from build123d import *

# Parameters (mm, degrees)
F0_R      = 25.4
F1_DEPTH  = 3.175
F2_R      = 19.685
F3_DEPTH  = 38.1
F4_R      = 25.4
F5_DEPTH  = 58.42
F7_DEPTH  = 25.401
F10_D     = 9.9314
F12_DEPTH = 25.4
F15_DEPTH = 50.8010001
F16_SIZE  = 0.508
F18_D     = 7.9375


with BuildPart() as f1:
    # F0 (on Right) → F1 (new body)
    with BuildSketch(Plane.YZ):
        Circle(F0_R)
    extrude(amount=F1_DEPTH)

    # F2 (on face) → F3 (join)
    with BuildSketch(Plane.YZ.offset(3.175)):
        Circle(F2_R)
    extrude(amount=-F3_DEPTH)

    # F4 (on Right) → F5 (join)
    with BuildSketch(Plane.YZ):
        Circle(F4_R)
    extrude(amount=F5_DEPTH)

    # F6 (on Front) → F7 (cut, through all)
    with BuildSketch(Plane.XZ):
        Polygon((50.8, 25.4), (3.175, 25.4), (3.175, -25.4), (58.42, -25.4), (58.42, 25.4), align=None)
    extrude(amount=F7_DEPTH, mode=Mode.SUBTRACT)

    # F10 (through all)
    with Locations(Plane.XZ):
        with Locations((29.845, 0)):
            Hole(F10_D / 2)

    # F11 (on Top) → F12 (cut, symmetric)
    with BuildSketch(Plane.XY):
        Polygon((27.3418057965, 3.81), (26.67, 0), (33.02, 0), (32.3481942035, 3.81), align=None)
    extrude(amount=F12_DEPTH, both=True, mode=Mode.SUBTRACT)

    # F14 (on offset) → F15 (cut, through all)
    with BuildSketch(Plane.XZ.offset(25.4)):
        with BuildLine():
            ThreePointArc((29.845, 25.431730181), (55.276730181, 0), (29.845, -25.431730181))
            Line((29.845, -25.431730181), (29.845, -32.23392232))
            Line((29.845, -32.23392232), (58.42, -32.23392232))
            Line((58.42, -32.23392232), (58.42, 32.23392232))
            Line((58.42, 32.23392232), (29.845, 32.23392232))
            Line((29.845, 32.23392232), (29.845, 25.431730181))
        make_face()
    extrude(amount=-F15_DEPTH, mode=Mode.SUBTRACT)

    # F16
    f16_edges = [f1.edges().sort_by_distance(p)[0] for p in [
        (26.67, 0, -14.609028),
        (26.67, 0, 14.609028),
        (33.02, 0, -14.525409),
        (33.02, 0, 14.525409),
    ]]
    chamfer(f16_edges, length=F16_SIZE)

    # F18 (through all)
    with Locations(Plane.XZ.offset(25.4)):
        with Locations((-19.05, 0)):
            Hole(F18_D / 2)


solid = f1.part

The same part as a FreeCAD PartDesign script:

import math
import FreeCAD as App
import Part
import Sketcher
Q = App.Units.Quantity


def edges_at(feature, points):
    """Names of the edges that pass closest to the given points."""
    edges = feature.Shape.Edges
    near = lambda p: min(range(len(edges)), key=lambda i: edges[i].distToShape(Part.Vertex(*p))[0])
    return sorted({f"Edge{near(p) + 1}" for p in points})

doc = App.newDocument("Part")
body = doc.addObject("PartDesign::Body", "Body")

# Sketch on YZ plane
sketch1 = body.newObject("Sketcher::SketchObject", "Sketch")
sketch1.AttachmentSupport = (doc.getObject("YZ_Plane"), [""])
sketch1.MapMode = "FlatFace"
sketch1.addGeometry(Part.Circle(App.Vector(0, 0, 0), App.Vector(0, 0, 1), 25.4), False)
sketch1.addConstraint([
    Sketcher.Constraint("Coincident", 0, 3, -1, 1),
    Sketcher.Constraint("Diameter", 0, Q("2 in")),
])
pad1 = body.newObject("PartDesign::Pad", "Pad")
pad1.Profile = sketch1
pad1.Length = Q("0.125 in")

# Sketch on YZ plane
sketch2 = body.newObject("Sketcher::SketchObject", "Sketch001")
sketch2.AttachmentSupport = (doc.getObject("YZ_Plane"), [""])
sketch2.MapMode = "FlatFace"
sketch2.AttachmentOffset = App.Placement(App.Vector(0, 0, 0.125 * 25.4), App.Rotation())
sketch2.addGeometry(Part.Circle(App.Vector(0, 0, 0), App.Vector(0, 0, 1), 19.685), False)
sketch2.addConstraint([
    Sketcher.Constraint("Coincident", 0, 3, -1, 1),
    Sketcher.Constraint("Diameter", 0, Q("1.55 in")),
])
pad2 = body.newObject("PartDesign::Pad", "Pad001")
pad2.Profile = sketch2
pad2.Length = Q("1.5 in")
pad2.Reversed = True

# Sketch on YZ plane
sketch3 = body.newObject("Sketcher::SketchObject", "Sketch002")
sketch3.AttachmentSupport = (doc.getObject("YZ_Plane"), [""])
sketch3.MapMode = "FlatFace"
sketch3.addGeometry(Part.Circle(App.Vector(0, 0, 0), App.Vector(0, 0, 1), 25.4), False)
sketch3.addConstraint([
    Sketcher.Constraint("Coincident", 0, 3, -1, 1),
    Sketcher.Constraint("Diameter", 0, Q("2 in")),
])
pad3 = body.newObject("PartDesign::Pad", "Pad002")
pad3.Profile = sketch3
pad3.Length = Q("2.3 in")

# Sketch on XZ plane
sketch4 = body.newObject("Sketcher::SketchObject", "Sketch003")
sketch4.AttachmentSupport = (doc.getObject("XZ_Plane"), [""])
sketch4.MapMode = "FlatFace"
sketch4.addGeometry([
    Part.LineSegment(App.Vector(3.175, 25.4, 0), App.Vector(3.175, -25.4, 0)),
    Part.LineSegment(App.Vector(3.175, -25.4, 0), App.Vector(58.42, -25.4, 0)),
    Part.LineSegment(App.Vector(58.42, -25.4, 0), App.Vector(58.42, 25.4, 0)),
    Part.LineSegment(App.Vector(58.42, 25.4, 0), App.Vector(3.175, 25.4, 0)),
], False)
sketch4.addConstraint([
    Sketcher.Constraint("Coincident", 0, 2, 1, 1),
    Sketcher.Constraint("Coincident", 1, 2, 2, 1),
    Sketcher.Constraint("Coincident", 2, 2, 3, 1),
    Sketcher.Constraint("Coincident", 3, 2, 0, 1),
    Sketcher.Constraint("Vertical", 0),
    Sketcher.Constraint("Horizontal", 1),
    Sketcher.Constraint("Vertical", 2),
    Sketcher.Constraint("Horizontal", 3),
    Sketcher.Constraint("DistanceY", 0, 2, 0, 1, Q("2 in")),
    Sketcher.Constraint("DistanceY", 0, 2, -1, 1, Q("1 in")),
    Sketcher.Constraint("DistanceX", -1, 1, 1, 2, Q("2.3 in")),
    Sketcher.Constraint("DistanceX", 1, 1, 1, 2, Q("2.175 in")),
])
pocket1 = body.newObject("PartDesign::Pocket", "Pocket")
pocket1.Profile = sketch4
pocket1.Type = "ThroughAll"
pocket1.Reversed = True

# Sketch on XZ plane
sketch5 = body.newObject("Sketcher::SketchObject", "Sketch004")
sketch5.AttachmentSupport = (doc.getObject("XZ_Plane"), [""])
sketch5.MapMode = "FlatFace"
sketch5.addGeometry(Part.Circle(App.Vector(29.845, 0, 0), App.Vector(0, 0, 1), 4.9657), False)
sketch5.addConstraint([
    Sketcher.Constraint("PointOnObject", 0, 3, -1),
    Sketcher.Constraint("Diameter", 0, Q("0.391 in")),
    Sketcher.Constraint("DistanceX", -1, 1, 0, 3, Q("1.175 in")),
])
doc.recompute()
hole = body.newObject("PartDesign::Hole", "Hole")
hole.Profile = sketch5
hole.ThreadType = "None"
hole.Diameter = Q("0.391 in")
hole.DepthType = "ThroughAll"

# Sketch on XY plane
sketch6 = body.newObject("Sketcher::SketchObject", "Sketch005")
sketch6.AttachmentSupport = (doc.getObject("XY_Plane"), [""])
sketch6.MapMode = "FlatFace"
sketch6.addGeometry([
    Part.LineSegment(App.Vector(27.341806, 3.81, 0), App.Vector(26.67, 0, 0)),
    Part.LineSegment(App.Vector(26.67, 0, 0), App.Vector(33.02, 0, 0)),
    Part.LineSegment(App.Vector(33.02, 0, 0), App.Vector(32.348194, 3.81, 0)),
    Part.LineSegment(App.Vector(32.348194, 3.81, 0), App.Vector(27.341806, 3.81, 0)),
], False)
sketch6.addConstraint([
    Sketcher.Constraint("Coincident", 0, 2, 1, 1),
    Sketcher.Constraint("Coincident", 1, 2, 2, 1),
    Sketcher.Constraint("Coincident", 2, 2, 3, 1),
    Sketcher.Constraint("Coincident", 3, 2, 0, 1),
    Sketcher.Constraint("Horizontal", 1),
    Sketcher.Constraint("Horizontal", 3),
    Sketcher.Constraint("PointOnObject", 0, 2, -1),
    Sketcher.Constraint("Equal", 0, 2),
    Sketcher.Constraint("Angle", 0, Q("-100 deg")),
    Sketcher.Constraint("DistanceX", 1, 1, 1, 2, Q("0.25 in")),
    Sketcher.Constraint("DistanceX", -1, 1, 1, 2, Q("1.3 in")),
    Sketcher.Constraint("DistanceY", -1, 1, 2, 2, Q("0.15 in")),
])
pocket2 = body.newObject("PartDesign::Pocket", "Pocket001")
pocket2.Profile = sketch6
pocket2.Length = Q("2 in")
pocket2.Midplane = True

# Sketch on XZ plane
sketch7 = body.newObject("Sketcher::SketchObject", "Sketch006")
sketch7.AttachmentSupport = (doc.getObject("XZ_Plane"), [""])
sketch7.MapMode = "FlatFace"
sketch7.AttachmentOffset = App.Placement(App.Vector(0, 0, 1 * 25.4), App.Rotation())
sketch7.addGeometry([
    Part.ArcOfCircle(Part.Circle(App.Vector(29.845, 0, 0), App.Vector(0, 0, 1), 25.43173), math.radians(-90), math.radians(90)),  # 0
    Part.LineSegment(App.Vector(29.845, -25.43173, 0), App.Vector(29.845, -32.233922, 0)),  # 1
    Part.LineSegment(App.Vector(29.845, -32.233922, 0), App.Vector(58.42, -32.233922, 0)),  # 2
    Part.LineSegment(App.Vector(58.42, -32.233922, 0), App.Vector(58.42, 32.233922, 0)),  # 3
    Part.LineSegment(App.Vector(58.42, 32.233922, 0), App.Vector(29.845, 32.233922, 0)),  # 4
    Part.LineSegment(App.Vector(29.845, 32.233922, 0), App.Vector(29.845, 25.43173, 0)),  # 5
], False)
sketch7.addConstraint([
    Sketcher.Constraint("Coincident", 0, 1, 1, 1),
    Sketcher.Constraint("Coincident", 1, 2, 2, 1),
    Sketcher.Constraint("Coincident", 2, 2, 3, 1),
    Sketcher.Constraint("Coincident", 3, 2, 4, 1),
    Sketcher.Constraint("Coincident", 4, 2, 5, 1),
    Sketcher.Constraint("Coincident", 5, 2, 0, 2),
    Sketcher.Constraint("Vertical", 1),
    Sketcher.Constraint("Horizontal", 2),
    Sketcher.Constraint("Vertical", 3),
    Sketcher.Constraint("Horizontal", 4),
    Sketcher.Constraint("Vertical", 5),
    Sketcher.Constraint("Symmetric", 1, 2, 4, 2, -1),
    Sketcher.Constraint("PointOnObject", 0, 3, -1),
    Sketcher.Constraint("DistanceX", -1, 1, 2, 2, Q("2.3 in")),
    Sketcher.Constraint("DistanceX", 2, 1, 2, 2, Q("1.125 in")),
    Sketcher.Constraint("DistanceX", -1, 1, 0, 3, Q("1.175 in")),
    Sketcher.Constraint("Radius", 0, Q("25.43173 mm")),
    Sketcher.Constraint("DistanceY", 1, 2, 1, 1, Q("6.802192 mm")),
])
pocket3 = body.newObject("PartDesign::Pocket", "Pocket002")
pocket3.Profile = sketch7
pocket3.Type = "ThroughAll"
doc.recompute()

chamfer = body.newObject("PartDesign::Chamfer", "Chamfer")
chamfer.Base = (pocket3, edges_at(pocket3, [
    (26.67, 0, -14.609),
    (26.67, 0, 14.609),
    (33.02, 0, -14.525),
    (33.02, 0, 14.525),
]))
chamfer.Size = Q("0.02 in")

# Sketch on XZ plane
sketch8 = body.newObject("Sketcher::SketchObject", "Sketch007")
sketch8.AttachmentSupport = (doc.getObject("XZ_Plane"), [""])
sketch8.MapMode = "FlatFace"
sketch8.AttachmentOffset = App.Placement(App.Vector(0, 0, 1 * 25.4), App.Rotation())
sketch8.addGeometry(Part.Circle(App.Vector(-19.05, 0, 0), App.Vector(0, 0, 1), 3.96875), False)
sketch8.addConstraint([
    Sketcher.Constraint("PointOnObject", 0, 3, -1),
    Sketcher.Constraint("Diameter", 0, Q("0.3125 in")),
    Sketcher.Constraint("DistanceX", 0, 3, -1, 1, Q("0.75 in")),
])
doc.recompute()
hole2 = body.newObject("PartDesign::Hole", "Hole001")
hole2.Profile = sketch8
hole2.ThreadType = "None"
hole2.Diameter = Q("0.3125 in")
hole2.DepthType = "ThroughAll"

doc.recompute()
